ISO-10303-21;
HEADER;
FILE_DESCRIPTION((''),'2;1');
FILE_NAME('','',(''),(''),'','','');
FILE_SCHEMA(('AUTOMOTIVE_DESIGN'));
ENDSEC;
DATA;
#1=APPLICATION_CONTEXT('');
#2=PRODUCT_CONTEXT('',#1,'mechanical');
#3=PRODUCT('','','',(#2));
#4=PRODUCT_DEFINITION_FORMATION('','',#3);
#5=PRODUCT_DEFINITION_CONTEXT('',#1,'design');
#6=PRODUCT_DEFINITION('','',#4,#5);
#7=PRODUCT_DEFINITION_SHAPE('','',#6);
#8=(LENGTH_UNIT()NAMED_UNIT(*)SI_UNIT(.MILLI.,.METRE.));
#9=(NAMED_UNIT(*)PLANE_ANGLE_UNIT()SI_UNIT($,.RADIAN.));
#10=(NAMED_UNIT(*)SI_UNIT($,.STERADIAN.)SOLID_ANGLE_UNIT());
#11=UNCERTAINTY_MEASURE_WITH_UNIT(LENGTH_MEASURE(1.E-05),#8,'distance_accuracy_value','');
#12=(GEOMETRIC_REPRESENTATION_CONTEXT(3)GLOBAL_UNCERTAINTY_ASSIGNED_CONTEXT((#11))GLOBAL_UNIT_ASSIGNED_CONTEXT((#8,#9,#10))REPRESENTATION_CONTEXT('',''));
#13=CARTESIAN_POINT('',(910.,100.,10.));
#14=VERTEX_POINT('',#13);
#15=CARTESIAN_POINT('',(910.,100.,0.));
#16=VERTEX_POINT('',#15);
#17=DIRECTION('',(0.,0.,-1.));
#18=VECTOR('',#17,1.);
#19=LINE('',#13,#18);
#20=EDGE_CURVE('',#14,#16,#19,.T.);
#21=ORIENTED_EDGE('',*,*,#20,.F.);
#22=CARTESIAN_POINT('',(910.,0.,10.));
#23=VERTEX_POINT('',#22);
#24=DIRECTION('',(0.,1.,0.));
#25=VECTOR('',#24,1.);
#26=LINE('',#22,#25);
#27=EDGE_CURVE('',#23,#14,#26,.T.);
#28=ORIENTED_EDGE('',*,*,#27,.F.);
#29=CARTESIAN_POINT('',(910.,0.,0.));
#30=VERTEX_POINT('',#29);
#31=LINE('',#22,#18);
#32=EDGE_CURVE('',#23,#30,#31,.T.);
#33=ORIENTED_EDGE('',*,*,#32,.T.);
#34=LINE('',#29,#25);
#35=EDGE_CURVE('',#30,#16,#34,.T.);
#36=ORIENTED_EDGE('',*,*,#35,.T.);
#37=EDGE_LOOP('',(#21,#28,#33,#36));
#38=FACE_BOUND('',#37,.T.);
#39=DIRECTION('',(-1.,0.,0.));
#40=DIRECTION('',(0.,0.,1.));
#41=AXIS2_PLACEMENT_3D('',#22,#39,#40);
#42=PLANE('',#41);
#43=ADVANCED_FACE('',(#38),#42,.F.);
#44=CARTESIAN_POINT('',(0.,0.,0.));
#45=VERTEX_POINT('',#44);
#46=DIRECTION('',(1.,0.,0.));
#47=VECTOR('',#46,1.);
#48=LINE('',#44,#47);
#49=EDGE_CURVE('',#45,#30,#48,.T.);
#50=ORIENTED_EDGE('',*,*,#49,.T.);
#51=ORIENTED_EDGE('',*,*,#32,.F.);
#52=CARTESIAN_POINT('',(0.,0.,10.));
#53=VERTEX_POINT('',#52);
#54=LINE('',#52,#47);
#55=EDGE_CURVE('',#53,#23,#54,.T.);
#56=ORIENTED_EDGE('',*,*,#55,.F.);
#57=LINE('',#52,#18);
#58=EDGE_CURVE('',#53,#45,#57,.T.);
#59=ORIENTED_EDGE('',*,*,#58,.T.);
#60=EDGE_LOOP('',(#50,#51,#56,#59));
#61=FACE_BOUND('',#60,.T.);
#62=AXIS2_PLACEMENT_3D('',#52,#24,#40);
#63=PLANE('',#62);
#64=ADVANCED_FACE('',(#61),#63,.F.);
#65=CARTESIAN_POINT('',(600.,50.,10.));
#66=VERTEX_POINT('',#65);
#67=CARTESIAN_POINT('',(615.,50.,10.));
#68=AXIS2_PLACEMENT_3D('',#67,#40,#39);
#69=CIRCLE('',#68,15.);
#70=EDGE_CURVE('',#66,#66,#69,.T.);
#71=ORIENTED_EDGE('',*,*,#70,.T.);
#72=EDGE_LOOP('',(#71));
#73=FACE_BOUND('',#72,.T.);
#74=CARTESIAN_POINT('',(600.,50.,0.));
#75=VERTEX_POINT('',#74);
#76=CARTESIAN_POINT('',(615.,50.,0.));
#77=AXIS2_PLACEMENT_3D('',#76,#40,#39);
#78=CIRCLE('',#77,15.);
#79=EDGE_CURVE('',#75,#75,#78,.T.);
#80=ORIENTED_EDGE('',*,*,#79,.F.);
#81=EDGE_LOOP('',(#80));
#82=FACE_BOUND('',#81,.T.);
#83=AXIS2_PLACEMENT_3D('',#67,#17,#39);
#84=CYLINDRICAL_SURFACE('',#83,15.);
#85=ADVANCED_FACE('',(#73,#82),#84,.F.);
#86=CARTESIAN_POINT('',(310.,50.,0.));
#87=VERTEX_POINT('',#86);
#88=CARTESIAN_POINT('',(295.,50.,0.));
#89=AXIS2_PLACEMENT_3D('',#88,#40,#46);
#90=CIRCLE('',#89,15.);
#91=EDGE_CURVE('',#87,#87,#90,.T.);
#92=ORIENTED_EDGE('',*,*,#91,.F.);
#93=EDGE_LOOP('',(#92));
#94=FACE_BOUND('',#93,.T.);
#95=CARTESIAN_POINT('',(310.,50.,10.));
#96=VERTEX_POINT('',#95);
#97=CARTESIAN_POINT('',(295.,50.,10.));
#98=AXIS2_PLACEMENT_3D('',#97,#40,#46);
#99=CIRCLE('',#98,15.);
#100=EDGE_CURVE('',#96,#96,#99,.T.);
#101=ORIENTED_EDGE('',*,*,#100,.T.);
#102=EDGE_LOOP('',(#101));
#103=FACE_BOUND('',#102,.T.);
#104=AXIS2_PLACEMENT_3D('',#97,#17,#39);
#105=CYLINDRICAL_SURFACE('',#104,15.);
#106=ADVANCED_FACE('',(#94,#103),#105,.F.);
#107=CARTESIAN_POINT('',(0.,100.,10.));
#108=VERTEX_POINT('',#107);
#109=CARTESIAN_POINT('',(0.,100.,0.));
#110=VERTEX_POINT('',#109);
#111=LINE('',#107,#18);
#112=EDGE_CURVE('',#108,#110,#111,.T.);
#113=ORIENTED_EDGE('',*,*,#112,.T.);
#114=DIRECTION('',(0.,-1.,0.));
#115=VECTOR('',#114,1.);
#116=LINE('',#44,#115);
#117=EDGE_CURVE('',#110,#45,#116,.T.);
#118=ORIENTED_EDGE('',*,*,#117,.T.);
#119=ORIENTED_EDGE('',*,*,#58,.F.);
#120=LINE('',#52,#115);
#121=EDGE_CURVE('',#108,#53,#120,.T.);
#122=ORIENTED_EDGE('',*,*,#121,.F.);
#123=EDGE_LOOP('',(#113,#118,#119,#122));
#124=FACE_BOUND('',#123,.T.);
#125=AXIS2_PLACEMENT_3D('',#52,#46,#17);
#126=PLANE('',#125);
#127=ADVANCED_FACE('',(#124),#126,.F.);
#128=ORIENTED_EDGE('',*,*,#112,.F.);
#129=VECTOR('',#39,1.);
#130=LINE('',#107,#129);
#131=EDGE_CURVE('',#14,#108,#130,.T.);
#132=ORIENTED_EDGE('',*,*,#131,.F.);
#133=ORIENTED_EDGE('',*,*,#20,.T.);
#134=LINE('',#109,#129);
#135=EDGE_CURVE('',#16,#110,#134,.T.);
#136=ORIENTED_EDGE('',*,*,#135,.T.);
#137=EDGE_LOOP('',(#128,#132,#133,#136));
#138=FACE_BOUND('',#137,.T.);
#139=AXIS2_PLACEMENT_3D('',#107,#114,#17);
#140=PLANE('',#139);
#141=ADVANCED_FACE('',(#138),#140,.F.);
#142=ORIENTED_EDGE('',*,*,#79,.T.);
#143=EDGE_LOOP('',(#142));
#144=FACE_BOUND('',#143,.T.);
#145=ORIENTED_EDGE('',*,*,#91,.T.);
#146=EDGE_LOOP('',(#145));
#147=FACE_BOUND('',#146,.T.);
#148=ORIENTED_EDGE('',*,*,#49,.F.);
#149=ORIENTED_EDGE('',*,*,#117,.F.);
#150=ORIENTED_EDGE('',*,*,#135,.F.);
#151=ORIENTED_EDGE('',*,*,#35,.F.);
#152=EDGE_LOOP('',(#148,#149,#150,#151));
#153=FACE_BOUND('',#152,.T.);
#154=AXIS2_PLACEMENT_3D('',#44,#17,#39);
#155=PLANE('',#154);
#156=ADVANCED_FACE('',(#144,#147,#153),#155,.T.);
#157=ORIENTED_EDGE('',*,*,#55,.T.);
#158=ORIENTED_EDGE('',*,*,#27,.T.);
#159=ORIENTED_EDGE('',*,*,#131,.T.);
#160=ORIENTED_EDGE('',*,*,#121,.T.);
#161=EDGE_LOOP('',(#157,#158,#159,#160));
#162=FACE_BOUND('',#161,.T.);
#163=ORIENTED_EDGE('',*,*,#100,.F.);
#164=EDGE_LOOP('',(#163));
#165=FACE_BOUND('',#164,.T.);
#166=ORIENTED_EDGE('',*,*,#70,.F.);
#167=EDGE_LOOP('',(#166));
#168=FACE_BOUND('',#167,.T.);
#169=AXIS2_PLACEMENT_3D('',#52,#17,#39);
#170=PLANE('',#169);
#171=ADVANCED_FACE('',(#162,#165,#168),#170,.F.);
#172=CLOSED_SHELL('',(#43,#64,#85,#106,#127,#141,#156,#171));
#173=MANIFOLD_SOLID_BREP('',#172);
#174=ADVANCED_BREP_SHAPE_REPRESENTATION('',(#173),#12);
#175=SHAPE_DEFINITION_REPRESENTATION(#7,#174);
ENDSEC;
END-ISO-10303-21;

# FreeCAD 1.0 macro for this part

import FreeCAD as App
import Part
import Sketcher


def add_polygon(sketch, points):
    """Adds a closed chain of lines whose ends are joined by coincident constraints."""
    first, n = sketch.GeometryCount, len(points)
    for a, b in zip(points, points[1:] + points[:1]):
        sketch.addGeometry(Part.LineSegment(App.Vector(*a, 0), App.Vector(*b, 0)), False)
    for i in range(n):
        sketch.addConstraint(Sketcher.Constraint("Coincident", first + i, 2, first + (i + 1) % n, 1))

doc = App.newDocument("Part")
body = doc.addObject("PartDesign::Body", "Body")

# Sketch on XY plane
sketch1 = doc.addObject("Sketcher::SketchObject", "Sketch")
body.addObject(sketch1)
sketch1.AttachmentSupport = (doc.XY_Plane, [""])
sketch1.MapMode = "FlatFace"
add_polygon(sketch1, [(0, 100), (0, 0), (910, 0), (910, 100)])  # lines 0-3
sketch1.addGeometry(Part.Circle(App.Vector(295, 50, 0), App.Vector(0, 0, 1), 15), False)  # 4
sketch1.addGeometry(Part.Circle(App.Vector(615, 50, 0), App.Vector(0, 0, 1), 15), False)  # 5
sketch1.addConstraint([
    Sketcher.Constraint("Vertical", 0),
    Sketcher.Constraint("Horizontal", 1),
    Sketcher.Constraint("Vertical", 2),
    Sketcher.Constraint("Horizontal", 3),
    Sketcher.Constraint("Coincident", 0, 2, -1, 1),
    Sketcher.Constraint("Equal", 4, 5),
    Sketcher.Constraint("Horizontal", 4, 3, 5, 3),
    Sketcher.Constraint("Diameter", 4, 30.0),
    Sketcher.Constraint("DistanceX", 1, 1, 1, 2, 910.0),
    Sketcher.Constraint("DistanceY", 0, 2, 0, 1, 100.0),
    Sketcher.Constraint("DistanceX", -1, 1, 4, 3, 295.0),
    Sketcher.Constraint("DistanceY", -1, 1, 4, 3, 50.0),
    Sketcher.Constraint("DistanceX", -1, 1, 5, 3, 615.0),
])
pad1 = doc.addObject("PartDesign::Pad", "Pad")
body.addObject(pad1)
pad1.Profile = sketch1
pad1.Length = 10

doc.recompute()
